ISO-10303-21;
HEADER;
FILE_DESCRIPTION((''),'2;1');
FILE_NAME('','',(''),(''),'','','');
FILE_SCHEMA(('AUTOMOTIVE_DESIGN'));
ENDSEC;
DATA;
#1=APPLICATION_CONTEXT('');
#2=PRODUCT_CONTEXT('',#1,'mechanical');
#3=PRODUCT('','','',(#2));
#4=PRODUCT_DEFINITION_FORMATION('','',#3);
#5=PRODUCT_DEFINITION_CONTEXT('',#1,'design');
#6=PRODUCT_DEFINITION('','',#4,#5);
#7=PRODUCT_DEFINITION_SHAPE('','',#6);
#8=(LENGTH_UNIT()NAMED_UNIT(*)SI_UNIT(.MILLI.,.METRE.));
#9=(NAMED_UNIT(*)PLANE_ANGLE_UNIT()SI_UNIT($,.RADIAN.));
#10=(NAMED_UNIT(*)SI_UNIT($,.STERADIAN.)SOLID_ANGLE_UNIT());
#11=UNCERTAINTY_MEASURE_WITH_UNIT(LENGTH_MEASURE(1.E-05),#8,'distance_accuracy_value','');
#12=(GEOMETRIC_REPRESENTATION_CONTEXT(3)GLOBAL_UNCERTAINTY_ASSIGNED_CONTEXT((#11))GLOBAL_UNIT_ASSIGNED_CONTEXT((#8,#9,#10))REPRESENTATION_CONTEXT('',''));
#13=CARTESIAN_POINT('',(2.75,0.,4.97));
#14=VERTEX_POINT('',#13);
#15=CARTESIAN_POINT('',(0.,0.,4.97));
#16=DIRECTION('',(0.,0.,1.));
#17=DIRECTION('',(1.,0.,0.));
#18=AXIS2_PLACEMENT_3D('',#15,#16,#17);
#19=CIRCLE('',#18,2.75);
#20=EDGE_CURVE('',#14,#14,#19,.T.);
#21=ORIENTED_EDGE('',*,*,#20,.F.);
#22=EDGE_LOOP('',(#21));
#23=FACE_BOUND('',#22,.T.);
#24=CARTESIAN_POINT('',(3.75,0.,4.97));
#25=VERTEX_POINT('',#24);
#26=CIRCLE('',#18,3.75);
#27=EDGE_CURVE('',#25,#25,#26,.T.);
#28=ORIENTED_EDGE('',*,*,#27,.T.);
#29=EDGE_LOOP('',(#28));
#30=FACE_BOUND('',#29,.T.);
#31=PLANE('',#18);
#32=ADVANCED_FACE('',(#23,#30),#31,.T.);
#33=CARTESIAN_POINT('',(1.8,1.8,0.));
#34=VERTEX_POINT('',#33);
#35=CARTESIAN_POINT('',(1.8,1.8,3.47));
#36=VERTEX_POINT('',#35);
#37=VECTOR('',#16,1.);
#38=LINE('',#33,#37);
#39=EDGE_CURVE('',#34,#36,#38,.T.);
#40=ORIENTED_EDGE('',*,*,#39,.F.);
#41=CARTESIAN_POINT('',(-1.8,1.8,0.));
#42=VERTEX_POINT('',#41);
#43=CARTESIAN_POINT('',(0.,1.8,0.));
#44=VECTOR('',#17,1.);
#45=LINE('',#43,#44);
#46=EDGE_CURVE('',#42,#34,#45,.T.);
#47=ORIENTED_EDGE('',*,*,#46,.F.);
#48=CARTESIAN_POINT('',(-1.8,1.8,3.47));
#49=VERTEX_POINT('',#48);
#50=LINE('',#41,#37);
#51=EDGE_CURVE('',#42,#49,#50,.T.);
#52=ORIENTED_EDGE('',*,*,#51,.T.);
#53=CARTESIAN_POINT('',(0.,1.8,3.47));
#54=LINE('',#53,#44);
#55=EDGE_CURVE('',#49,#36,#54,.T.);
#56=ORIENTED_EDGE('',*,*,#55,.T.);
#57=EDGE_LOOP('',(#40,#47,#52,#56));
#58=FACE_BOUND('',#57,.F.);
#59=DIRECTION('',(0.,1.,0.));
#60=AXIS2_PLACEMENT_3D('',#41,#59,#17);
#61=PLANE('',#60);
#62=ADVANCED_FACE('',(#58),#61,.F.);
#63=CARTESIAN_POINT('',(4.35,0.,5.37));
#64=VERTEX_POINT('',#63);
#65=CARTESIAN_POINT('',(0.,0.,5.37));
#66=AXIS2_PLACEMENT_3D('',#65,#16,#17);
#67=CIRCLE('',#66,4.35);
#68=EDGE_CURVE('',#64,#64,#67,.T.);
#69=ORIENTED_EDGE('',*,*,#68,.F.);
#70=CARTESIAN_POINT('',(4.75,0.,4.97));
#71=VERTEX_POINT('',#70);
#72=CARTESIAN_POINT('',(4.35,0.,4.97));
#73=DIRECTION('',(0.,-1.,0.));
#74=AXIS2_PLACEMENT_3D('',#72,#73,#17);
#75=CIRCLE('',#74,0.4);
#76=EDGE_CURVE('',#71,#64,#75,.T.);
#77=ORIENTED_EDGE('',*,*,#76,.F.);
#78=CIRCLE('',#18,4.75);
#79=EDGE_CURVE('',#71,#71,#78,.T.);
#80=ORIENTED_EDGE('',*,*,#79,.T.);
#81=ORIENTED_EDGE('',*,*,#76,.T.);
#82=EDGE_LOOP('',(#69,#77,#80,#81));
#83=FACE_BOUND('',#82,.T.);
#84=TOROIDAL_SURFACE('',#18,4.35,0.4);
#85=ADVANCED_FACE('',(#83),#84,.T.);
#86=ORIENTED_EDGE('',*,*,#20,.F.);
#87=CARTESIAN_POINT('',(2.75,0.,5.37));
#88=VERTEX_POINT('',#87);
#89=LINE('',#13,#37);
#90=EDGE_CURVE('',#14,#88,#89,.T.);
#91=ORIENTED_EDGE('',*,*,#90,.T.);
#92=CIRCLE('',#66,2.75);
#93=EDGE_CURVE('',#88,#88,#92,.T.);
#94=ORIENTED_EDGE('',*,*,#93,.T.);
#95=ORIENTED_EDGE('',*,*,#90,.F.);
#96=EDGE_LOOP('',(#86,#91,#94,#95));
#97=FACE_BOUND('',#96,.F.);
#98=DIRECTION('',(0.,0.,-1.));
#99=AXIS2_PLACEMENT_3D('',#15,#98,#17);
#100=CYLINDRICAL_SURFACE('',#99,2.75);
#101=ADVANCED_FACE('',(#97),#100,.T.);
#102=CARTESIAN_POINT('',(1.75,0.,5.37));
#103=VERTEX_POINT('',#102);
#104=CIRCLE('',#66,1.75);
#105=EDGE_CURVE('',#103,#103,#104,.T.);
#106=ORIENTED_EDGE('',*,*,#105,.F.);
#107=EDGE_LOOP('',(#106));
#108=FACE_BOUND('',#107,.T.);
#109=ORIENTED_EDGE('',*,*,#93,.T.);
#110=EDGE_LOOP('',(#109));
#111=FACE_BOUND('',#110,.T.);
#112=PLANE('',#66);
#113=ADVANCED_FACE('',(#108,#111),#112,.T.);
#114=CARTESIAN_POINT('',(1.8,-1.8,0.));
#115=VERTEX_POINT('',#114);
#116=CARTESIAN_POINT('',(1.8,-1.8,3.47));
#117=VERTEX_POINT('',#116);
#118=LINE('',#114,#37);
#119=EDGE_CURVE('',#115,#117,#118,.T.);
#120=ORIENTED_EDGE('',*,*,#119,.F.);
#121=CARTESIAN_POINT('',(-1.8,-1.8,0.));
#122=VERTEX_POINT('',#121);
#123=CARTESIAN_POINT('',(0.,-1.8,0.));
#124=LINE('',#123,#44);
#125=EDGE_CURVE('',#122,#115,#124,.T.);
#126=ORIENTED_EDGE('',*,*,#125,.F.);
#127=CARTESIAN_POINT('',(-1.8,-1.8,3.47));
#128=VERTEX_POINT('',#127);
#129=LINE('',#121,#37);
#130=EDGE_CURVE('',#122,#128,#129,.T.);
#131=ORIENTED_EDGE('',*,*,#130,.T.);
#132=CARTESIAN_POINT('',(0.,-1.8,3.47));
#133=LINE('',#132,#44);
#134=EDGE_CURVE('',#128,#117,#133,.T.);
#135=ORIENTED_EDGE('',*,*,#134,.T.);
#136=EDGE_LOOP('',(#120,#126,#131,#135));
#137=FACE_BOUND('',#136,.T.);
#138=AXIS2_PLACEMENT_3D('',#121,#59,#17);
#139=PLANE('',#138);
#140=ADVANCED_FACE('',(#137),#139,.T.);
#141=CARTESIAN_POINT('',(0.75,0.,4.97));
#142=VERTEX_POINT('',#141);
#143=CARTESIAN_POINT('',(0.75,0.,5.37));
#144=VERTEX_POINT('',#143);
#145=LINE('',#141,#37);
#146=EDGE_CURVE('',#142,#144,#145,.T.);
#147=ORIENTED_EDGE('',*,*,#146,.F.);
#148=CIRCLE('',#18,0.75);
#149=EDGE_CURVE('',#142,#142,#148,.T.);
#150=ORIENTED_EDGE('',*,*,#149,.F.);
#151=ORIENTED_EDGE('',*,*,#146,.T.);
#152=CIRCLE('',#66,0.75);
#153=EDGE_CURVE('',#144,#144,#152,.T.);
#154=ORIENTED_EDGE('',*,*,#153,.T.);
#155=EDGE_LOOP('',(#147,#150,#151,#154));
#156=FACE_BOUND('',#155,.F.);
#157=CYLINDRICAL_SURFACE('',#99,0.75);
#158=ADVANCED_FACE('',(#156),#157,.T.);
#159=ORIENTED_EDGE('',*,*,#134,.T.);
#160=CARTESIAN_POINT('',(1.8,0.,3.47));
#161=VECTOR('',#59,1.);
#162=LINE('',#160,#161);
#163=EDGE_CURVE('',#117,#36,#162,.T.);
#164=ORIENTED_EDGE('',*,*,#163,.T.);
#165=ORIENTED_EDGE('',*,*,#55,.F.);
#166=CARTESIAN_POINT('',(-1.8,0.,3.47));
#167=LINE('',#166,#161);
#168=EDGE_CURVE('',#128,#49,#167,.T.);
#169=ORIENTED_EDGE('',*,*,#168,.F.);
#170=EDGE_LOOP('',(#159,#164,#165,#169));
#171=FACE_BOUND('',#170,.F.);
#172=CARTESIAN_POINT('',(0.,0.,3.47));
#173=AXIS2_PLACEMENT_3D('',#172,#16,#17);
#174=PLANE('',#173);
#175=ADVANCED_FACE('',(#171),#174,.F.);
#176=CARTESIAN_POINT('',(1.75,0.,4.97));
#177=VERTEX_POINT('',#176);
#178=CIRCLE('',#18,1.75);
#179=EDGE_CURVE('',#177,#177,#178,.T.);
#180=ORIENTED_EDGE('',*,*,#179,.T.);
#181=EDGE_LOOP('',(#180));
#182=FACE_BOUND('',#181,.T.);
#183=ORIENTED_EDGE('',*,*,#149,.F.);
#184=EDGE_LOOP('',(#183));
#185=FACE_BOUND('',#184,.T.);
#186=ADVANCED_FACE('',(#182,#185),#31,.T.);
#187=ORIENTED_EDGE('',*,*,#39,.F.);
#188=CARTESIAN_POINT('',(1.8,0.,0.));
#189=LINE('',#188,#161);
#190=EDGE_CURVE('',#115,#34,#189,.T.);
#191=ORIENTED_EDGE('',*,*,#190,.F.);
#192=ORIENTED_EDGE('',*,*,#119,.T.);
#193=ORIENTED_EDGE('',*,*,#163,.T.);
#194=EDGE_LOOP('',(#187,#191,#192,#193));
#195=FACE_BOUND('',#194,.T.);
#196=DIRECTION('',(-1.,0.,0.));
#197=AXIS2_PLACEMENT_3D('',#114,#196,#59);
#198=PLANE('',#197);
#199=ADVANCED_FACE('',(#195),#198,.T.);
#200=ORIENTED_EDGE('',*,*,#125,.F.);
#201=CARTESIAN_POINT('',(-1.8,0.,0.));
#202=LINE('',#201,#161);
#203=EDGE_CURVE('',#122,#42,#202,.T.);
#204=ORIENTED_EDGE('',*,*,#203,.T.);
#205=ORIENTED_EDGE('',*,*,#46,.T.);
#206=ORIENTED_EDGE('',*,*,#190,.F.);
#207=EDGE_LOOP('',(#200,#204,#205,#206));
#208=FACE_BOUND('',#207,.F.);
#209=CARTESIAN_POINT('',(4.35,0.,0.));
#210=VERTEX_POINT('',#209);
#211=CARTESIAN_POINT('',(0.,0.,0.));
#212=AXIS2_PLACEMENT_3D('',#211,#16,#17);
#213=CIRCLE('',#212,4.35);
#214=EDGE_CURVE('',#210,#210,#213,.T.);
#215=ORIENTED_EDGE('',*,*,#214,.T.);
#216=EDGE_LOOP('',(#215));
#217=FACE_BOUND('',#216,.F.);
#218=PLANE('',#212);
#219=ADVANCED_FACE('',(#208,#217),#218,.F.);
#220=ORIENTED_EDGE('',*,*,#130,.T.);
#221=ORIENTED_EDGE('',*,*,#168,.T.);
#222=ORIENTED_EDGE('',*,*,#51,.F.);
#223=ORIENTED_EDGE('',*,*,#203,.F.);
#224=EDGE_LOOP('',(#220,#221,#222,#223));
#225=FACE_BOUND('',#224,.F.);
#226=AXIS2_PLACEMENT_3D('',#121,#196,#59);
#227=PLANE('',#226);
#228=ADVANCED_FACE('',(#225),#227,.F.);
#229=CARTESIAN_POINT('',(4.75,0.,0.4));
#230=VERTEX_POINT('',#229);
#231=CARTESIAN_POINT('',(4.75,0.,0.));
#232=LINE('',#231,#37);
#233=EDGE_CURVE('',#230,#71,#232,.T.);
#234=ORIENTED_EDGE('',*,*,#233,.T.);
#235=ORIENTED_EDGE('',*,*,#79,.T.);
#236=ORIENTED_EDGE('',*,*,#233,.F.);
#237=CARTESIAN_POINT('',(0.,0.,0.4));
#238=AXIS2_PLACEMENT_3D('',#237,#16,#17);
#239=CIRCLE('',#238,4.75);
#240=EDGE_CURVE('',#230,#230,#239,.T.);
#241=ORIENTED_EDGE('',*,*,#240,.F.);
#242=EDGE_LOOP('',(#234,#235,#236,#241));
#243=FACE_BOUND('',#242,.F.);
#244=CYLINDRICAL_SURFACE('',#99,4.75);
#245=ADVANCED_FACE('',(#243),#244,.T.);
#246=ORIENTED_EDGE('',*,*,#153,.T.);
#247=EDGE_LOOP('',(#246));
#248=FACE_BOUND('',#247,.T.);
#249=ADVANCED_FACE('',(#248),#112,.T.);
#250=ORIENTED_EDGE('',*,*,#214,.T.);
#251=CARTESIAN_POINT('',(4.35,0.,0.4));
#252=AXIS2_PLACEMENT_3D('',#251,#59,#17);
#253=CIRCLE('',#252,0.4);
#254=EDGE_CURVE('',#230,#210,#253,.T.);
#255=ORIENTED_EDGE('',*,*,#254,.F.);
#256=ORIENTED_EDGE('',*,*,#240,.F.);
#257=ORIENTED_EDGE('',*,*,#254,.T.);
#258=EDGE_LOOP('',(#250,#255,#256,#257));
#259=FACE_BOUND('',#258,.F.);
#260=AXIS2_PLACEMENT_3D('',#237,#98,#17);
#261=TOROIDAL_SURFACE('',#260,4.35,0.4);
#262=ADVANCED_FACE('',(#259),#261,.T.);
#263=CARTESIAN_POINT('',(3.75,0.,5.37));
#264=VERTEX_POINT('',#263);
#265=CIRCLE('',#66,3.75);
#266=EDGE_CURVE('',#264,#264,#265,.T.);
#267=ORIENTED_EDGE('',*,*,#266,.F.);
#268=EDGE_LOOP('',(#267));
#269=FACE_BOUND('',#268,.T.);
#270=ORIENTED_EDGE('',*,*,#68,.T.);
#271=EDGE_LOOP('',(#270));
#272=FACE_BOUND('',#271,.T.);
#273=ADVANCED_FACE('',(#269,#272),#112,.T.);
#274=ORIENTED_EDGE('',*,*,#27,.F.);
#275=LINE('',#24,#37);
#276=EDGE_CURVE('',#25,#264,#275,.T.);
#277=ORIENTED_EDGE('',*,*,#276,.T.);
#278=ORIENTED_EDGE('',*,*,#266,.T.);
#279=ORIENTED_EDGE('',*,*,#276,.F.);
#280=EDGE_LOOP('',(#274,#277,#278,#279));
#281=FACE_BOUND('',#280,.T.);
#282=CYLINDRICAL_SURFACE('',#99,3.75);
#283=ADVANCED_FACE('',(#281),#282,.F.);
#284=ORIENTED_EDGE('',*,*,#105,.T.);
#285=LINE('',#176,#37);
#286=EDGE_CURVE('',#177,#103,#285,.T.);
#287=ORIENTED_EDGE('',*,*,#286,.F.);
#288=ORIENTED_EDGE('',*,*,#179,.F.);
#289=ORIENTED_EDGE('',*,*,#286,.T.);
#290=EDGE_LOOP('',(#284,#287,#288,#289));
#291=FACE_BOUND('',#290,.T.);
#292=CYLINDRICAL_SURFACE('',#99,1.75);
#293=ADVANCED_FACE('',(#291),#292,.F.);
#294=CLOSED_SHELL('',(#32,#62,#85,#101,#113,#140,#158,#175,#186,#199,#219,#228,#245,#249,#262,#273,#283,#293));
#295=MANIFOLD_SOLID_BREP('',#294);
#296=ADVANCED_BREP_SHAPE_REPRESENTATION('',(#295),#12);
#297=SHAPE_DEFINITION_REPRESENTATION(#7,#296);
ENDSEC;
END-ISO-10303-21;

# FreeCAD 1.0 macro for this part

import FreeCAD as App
import Part
import Sketcher
from FreeCAD import Vector
Q = App.Units.Quantity


def edges_at(feature, points):
    """Names of the edges that pass closest to the given points."""
    edges = feature.Shape.Edges
    near = lambda p: min(range(len(edges)), key=lambda i: edges[i].distToShape(Part.Vertex(*p))[0])
    return sorted({f"Edge{near(p) + 1}" for p in points})


def add_polygon(sketch, points):
    """Adds a closed chain of lines whose ends are joined by coincident constraints."""
    first, n = sketch.GeometryCount, len(points)
    for a, b in zip(points, points[1:] + points[:1]):
        sketch.addGeometry(Part.LineSegment(App.Vector(*a, 0), App.Vector(*b, 0)), False)
    for i in range(n):
        sketch.addConstraint(Sketcher.Constraint("Coincident", first + i, 2, first + (i + 1) % n, 1))

doc = App.newDocument("Part")
body = doc.addObject("PartDesign::Body", "Body")

# Sketch on XY plane
sketch1 = body.newObject("Sketcher::SketchObject", "Sketch")
sketch1.AttachmentSupport = (doc.getObject("XY_Plane"), [""])
sketch1.MapMode = "FlatFace"
sketch1.addGeometry(Part.Circle(Vector(0, 0, 0), Vector(0, 0, 1), 4.8), False)  # 0
add_polygon(sketch1, [(1.8, -1.8), (-1.8, -1.8), (-1.8, 1.8), (1.8, 1.8)])  # lines 1-4
sketch1.addConstraint([
    Sketcher.Constraint("Horizontal", 1),
    Sketcher.Constraint("Vertical", 2),
    Sketcher.Constraint("Horizontal", 3),
    Sketcher.Constraint("Vertical", 4),
    Sketcher.Constraint("Coincident", 0, 3, -1, 1),
    Sketcher.Constraint("Symmetric", 1, 2, 3, 2, -1, 1),
    Sketcher.Constraint("Equal", 3, 2),
    Sketcher.Constraint("Diameter", 0, Q("9.5 mm")),
    Sketcher.Constraint("DistanceX", 1, 2, 1, 1, Q("3.6 mm")),
])
pad1 = body.newObject("PartDesign::Pad", "Pad")
pad1.Profile = sketch1
pad1.Length = 3.47

# Sketch on XY plane
sketch2 = body.newObject("Sketcher::SketchObject", "Sketch001")
sketch2.AttachmentSupport = (doc.getObject("XY_Plane"), [""])
sketch2.MapMode = "FlatFace"
sketch2.AttachmentOffset = App.Placement(Vector(0, 0, 3.47), App.Rotation())
sketch2.addGeometry(Part.Circle(Vector(0, 0, 0), Vector(0, 0, 1), 4.8), False)
sketch2.addConstraint([
    Sketcher.Constraint("Coincident", 0, 3, -1, 1),
    Sketcher.Constraint("Diameter", 0, Q("9.5 mm")),
])
pad2 = body.newObject("PartDesign::Pad", "Pad001")
pad2.Profile = sketch2
pad2.Length = 1.5

# Sketch on XY plane
sketch3 = body.newObject("Sketcher::SketchObject", "Sketch002")
sketch3.AttachmentSupport = (doc.getObject("XY_Plane"), [""])
sketch3.MapMode = "FlatFace"
sketch3.AttachmentOffset = App.Placement(Vector(0, 0, 4.97), App.Rotation())
sketch3.addGeometry([
    Part.Circle(Vector(0, 0, 0), Vector(0, 0, 1), 4.8),  # 0
    Part.Circle(Vector(0, 0, 0), Vector(0, 0, 1), 3.8),  # 1
    Part.Circle(Vector(0, 0, 0), Vector(0, 0, 1), 2.8),  # 2
    Part.Circle(Vector(0, 0, 0), Vector(0, 0, 1), 1.8),  # 3
    Part.Circle(Vector(0, 0, 0), Vector(0, 0, 1), 0.8),  # 4
], False)
sketch3.addConstraint([
    Sketcher.Constraint("Coincident", 0, 3, -1, 1),
    Sketcher.Constraint("Coincident", 1, 3, -1, 1),
    Sketcher.Constraint("Coincident", 2, 3, -1, 1),
    Sketcher.Constraint("Coincident", 3, 3, -1, 1),
    Sketcher.Constraint("Coincident", 4, 3, -1, 1),
    Sketcher.Constraint("Diameter", 0, Q("9.5 mm")),
    Sketcher.Constraint("Diameter", 1, Q("7.5 mm")),
    Sketcher.Constraint("Diameter", 2, Q("5.5 mm")),
    Sketcher.Constraint("Diameter", 3, Q("3.5 mm")),
    Sketcher.Constraint("Diameter", 4, Q("1.5 mm")),
])
pad3 = body.newObject("PartDesign::Pad", "Pad002")
pad3.Profile = sketch3
pad3.Length = 0.4
doc.recompute()

fillet = body.newObject("PartDesign::Fillet", "Fillet")
fillet.Base = (pad3, edges_at(pad3, [(-4.75, 0, 5.37), (-4.75, 0, 0)]))
fillet.Radius = 0.4

doc.recompute()
